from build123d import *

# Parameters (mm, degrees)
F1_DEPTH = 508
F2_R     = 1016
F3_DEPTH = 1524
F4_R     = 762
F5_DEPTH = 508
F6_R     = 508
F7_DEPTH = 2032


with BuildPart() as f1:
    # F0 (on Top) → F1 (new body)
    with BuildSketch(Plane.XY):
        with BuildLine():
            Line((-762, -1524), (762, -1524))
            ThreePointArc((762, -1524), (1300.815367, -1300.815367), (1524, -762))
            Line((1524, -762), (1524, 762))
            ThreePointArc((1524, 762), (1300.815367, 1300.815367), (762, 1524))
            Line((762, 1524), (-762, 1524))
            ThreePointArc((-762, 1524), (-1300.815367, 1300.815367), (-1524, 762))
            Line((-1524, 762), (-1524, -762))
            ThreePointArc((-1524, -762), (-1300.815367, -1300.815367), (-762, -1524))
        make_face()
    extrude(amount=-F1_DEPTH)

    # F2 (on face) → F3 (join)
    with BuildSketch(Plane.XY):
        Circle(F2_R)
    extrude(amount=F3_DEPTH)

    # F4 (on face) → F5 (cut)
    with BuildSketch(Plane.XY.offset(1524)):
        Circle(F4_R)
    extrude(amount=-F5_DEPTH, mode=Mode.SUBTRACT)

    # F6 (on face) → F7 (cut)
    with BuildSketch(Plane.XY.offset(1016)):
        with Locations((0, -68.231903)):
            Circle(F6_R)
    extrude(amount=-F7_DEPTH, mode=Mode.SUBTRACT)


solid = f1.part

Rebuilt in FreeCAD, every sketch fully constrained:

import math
import FreeCAD as App
import Part
import Sketcher
Q = App.Units.Quantity

doc = App.newDocument("Part")
params = doc.addObject("Spreadsheet::Sheet", "Params")
for row, (alias, value) in enumerate([
    ("sketch1_radius", "30 in"),
    ("sketch1_width", "60 in"),
    ("pad1_length", "20 in"),
    ("sketch2_diameter", "80 in"),
    ("pad2_length", "60 in"),
    ("sketch3_diameter", "60 in"),
    ("pocket1_length", "20 in"),
    ("sketch4_diameter", "40 in"),
    ("pocket2_length", "80 in"),
], start=1):
    params.set(f"A{row}", alias)
    params.set(f"B{row}", "=" + value)
    params.setAlias(f"B{row}", alias)

body = doc.addObject("PartDesign::Body", "Body")

# Sketch on XY plane
sketch1 = body.newObject("Sketcher::SketchObject", "Sketch")
sketch1.AttachmentSupport = (doc.getObject("XY_Plane"), [""])
sketch1.MapMode = "FlatFace"
sketch1.addGeometry([
    Part.LineSegment(App.Vector(-762, -1524, 0), App.Vector(762, -1524, 0)),  # 0
    Part.ArcOfCircle(Part.Circle(App.Vector(762, -762, 0), App.Vector(0, 0, 1), 762), math.radians(-90), math.radians(0)),  # 1
    Part.LineSegment(App.Vector(1524, -762, 0), App.Vector(1524, 762, 0)),  # 2
    Part.ArcOfCircle(Part.Circle(App.Vector(762, 762, 0), App.Vector(0, 0, 1), 762), math.radians(0), math.radians(90)),  # 3
    Part.LineSegment(App.Vector(762, 1524, 0), App.Vector(-762, 1524, 0)),  # 4
    Part.ArcOfCircle(Part.Circle(App.Vector(-762, 762, 0), App.Vector(0, 0, 1), 762), math.radians(90), math.radians(180)),  # 5
    Part.LineSegment(App.Vector(-1524, 762, 0), App.Vector(-1524, -762, 0)),  # 6
    Part.ArcOfCircle(Part.Circle(App.Vector(-762, -762, 0), App.Vector(0, 0, 1), 762), math.radians(-180), math.radians(-90)),  # 7
], False)
sketch1.addConstraint([
    Sketcher.Constraint("Tangent", 0, 2, 1, 1),
    Sketcher.Constraint("Coincident", 1, 2, 2, 1),
    Sketcher.Constraint("Coincident", 2, 2, 3, 1),
    Sketcher.Constraint("Coincident", 3, 2, 4, 1),
    Sketcher.Constraint("Tangent", 4, 2, 5, 1),
    Sketcher.Constraint("Coincident", 5, 2, 6, 1),
    Sketcher.Constraint("Coincident", 6, 2, 7, 1),
    Sketcher.Constraint("Coincident", 7, 2, 0, 1),
    Sketcher.Constraint("Horizontal", 0),
    Sketcher.Constraint("Vertical", 2),
    Sketcher.Constraint("Horizontal", 4),
    Sketcher.Constraint("Vertical", 6),
    Sketcher.Constraint("Equal", 1, 3),
    Sketcher.Constraint("Equal", 3, 5),
    Sketcher.Constraint("Equal", 5, 7),
    Sketcher.Constraint("Symmetric", 1, 3, 5, 3, -1, 1),
    Sketcher.Constraint("Horizontal", 5, 3, 2, 2),
    Sketcher.Constraint("Equal", 0, 4),
    Sketcher.Constraint("Equal", 4, 2),
    Sketcher.Constraint("Equal", 2, 6),
    Sketcher.Constraint("Radius", 1, Q("30 in")),
    Sketcher.Constraint("DistanceX", 0, 1, 0, 2, Q("60 in")),
    Sketcher.Constraint("DistanceX", -1, 1, 1, 3, Q("30 in")),
    Sketcher.Constraint("DistanceY", 1, 3, -1, 1, Q("30 in")),
    Sketcher.Constraint("DistanceY", 6, 2, -1, 1, Q("30 in")),
])
sketch1.setExpression("Constraints[20]", "Params.sketch1_radius")
sketch1.setExpression("Constraints[21]", "Params.sketch1_width")
pad1 = body.newObject("PartDesign::Pad", "Pad")
pad1.Profile = sketch1
pad1.setExpression("Length", "Params.pad1_length")
pad1.Reversed = True

# Sketch on XY plane
sketch2 = body.newObject("Sketcher::SketchObject", "Sketch001")
sketch2.AttachmentSupport = (doc.getObject("XY_Plane"), [""])
sketch2.MapMode = "FlatFace"
sketch2.addGeometry(Part.Circle(App.Vector(0, 0, 0), App.Vector(0, 0, 1), 1016), False)
sketch2.addConstraint([
    Sketcher.Constraint("Coincident", 0, 3, -1, 1),
    Sketcher.Constraint("Diameter", 0, Q("80 in")),
])
sketch2.setExpression("Constraints[1]", "Params.sketch2_diameter")
pad2 = body.newObject("PartDesign::Pad", "Pad001")
pad2.Profile = sketch2
pad2.setExpression("Length", "Params.pad2_length")

# Sketch on XY plane
sketch3 = body.newObject("Sketcher::SketchObject", "Sketch002")
sketch3.AttachmentSupport = (doc.getObject("XY_Plane"), [""])
sketch3.MapMode = "FlatFace"
sketch3.AttachmentOffset = App.Placement(App.Vector(0, 0, 60 * 25.4), App.Rotation())
sketch3.addGeometry(Part.Circle(App.Vector(0, 0, 0), App.Vector(0, 0, 1), 762), False)
sketch3.addConstraint([
    Sketcher.Constraint("Coincident", 0, 3, -1, 1),
    Sketcher.Constraint("Diameter", 0, Q("60 in")),
])
sketch3.setExpression("Constraints[1]", "Params.sketch3_diameter")
pocket1 = body.newObject("PartDesign::Pocket", "Pocket")
pocket1.Profile = sketch3
pocket1.setExpression("Length", "Params.pocket1_length")

# Sketch on XY plane
sketch4 = body.newObject("Sketcher::SketchObject", "Sketch003")
sketch4.AttachmentSupport = (doc.getObject("XY_Plane"), [""])
sketch4.MapMode = "FlatFace"
sketch4.AttachmentOffset = App.Placement(App.Vector(0, 0, 40 * 25.4), App.Rotation())
sketch4.addGeometry(Part.Circle(App.Vector(0, -68, 0), App.Vector(0, 0, 1), 508), False)
sketch4.addConstraint([
    Sketcher.Constraint("PointOnObject", 0, 3, -2),
    Sketcher.Constraint("Diameter", 0, Q("40 in")),
    Sketcher.Constraint("DistanceY", 0, 3, -1, 1, Q("68.231903 mm")),
])
sketch4.setExpression("Constraints[1]", "Params.sketch4_diameter")
pocket2 = body.newObject("PartDesign::Pocket", "Pocket001")
pocket2.Profile = sketch4
pocket2.setExpression("Length", "Params.pocket2_length")

doc.recompute()
